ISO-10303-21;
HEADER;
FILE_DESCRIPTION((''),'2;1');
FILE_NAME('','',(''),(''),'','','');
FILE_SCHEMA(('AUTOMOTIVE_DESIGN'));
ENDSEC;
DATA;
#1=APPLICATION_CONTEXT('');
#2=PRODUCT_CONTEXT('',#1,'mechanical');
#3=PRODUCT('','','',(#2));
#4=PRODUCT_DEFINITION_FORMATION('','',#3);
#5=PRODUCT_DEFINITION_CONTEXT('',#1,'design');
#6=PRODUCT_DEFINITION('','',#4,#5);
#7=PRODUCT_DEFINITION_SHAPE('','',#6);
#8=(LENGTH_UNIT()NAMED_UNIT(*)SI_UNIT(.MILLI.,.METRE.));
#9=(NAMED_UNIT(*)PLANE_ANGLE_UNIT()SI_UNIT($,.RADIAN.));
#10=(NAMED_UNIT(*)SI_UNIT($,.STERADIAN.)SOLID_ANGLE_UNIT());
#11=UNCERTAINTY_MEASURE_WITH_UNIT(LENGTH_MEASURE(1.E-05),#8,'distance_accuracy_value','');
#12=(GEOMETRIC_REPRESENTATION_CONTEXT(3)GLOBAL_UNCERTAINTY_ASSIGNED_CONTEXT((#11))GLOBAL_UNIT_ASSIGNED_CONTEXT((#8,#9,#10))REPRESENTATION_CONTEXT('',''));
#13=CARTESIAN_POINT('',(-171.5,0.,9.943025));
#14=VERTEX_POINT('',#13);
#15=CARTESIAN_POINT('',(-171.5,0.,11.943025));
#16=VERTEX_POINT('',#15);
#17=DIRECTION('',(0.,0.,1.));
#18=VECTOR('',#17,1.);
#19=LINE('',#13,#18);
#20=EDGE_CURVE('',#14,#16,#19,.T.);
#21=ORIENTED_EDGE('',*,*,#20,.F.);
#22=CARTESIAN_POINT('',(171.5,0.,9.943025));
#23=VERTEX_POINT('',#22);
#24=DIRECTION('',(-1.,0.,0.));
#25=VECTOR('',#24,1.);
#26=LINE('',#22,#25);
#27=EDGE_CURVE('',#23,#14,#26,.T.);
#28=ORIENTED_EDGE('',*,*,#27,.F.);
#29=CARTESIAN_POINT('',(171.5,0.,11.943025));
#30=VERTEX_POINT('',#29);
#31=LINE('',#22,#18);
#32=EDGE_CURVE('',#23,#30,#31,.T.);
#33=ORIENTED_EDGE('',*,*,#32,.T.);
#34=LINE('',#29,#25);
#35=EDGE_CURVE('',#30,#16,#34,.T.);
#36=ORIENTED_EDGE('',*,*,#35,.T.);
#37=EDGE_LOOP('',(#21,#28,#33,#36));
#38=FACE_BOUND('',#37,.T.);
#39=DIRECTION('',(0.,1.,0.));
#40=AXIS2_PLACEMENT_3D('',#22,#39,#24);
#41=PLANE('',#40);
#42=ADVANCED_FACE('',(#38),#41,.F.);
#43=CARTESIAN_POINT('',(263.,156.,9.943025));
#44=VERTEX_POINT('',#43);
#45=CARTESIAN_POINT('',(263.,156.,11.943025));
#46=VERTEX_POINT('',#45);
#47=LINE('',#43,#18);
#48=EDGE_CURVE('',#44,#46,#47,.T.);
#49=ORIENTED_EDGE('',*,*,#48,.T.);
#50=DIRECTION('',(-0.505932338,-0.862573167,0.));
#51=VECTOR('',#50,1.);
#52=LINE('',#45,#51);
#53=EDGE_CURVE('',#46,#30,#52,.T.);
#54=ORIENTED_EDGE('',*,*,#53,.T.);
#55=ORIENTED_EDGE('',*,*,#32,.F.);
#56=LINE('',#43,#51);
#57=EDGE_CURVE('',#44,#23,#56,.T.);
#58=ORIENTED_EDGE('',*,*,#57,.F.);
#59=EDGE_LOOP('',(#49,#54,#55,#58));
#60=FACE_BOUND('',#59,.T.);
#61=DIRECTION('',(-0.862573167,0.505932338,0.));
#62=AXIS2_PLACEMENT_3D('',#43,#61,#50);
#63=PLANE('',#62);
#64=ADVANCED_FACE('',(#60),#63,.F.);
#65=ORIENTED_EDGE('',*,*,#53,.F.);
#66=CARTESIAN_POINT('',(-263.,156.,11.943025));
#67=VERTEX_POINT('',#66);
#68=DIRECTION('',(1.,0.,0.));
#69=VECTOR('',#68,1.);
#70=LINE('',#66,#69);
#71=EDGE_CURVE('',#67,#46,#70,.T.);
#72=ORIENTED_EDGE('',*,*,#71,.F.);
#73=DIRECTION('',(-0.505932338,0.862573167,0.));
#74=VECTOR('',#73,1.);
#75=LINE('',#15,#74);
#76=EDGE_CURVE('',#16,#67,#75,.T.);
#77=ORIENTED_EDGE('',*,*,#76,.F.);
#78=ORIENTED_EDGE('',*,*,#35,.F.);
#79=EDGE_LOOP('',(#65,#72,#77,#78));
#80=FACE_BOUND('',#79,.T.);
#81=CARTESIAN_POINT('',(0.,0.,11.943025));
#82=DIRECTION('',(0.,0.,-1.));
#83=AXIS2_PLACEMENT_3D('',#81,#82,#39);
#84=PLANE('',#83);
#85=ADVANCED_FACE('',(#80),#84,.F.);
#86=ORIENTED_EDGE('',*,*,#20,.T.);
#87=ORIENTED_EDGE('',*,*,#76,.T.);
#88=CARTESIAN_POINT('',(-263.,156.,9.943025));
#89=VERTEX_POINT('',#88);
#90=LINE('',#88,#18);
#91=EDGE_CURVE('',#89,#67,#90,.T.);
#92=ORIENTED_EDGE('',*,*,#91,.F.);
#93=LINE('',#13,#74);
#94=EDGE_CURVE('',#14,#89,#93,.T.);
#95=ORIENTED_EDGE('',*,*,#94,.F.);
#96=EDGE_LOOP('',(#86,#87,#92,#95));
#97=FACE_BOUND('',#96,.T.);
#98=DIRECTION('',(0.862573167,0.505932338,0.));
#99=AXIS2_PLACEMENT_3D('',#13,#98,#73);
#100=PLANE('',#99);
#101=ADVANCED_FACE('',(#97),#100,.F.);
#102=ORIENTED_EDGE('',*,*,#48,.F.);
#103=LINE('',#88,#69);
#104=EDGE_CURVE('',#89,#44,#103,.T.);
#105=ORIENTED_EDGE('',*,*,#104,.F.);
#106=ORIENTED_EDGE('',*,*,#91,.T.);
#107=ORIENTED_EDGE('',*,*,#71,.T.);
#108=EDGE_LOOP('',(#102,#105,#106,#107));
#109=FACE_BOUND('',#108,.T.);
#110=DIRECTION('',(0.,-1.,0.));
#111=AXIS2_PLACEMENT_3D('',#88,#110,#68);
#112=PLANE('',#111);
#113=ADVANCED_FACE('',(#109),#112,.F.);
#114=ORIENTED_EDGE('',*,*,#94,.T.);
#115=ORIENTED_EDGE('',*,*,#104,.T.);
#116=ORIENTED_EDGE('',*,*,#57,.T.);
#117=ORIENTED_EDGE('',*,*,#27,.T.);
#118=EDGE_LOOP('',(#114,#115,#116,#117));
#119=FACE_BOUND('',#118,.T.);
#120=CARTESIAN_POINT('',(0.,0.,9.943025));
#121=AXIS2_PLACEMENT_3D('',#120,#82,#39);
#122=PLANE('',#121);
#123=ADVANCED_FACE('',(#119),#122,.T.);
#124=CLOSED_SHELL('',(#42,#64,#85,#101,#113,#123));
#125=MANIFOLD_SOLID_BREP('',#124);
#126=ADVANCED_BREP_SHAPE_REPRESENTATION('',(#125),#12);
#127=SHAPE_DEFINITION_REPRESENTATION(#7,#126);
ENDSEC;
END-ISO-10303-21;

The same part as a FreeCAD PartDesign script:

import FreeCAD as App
import Part
import Sketcher
Q = App.Units.Quantity

doc = App.newDocument("Part")
body = doc.addObject("PartDesign::Body", "Body")

sketch1 = body.newObject("Sketcher::SketchObject", "Sketch")
sketch1.AttachmentSupport = (doc.getObject("XY_Plane"), [""])
sketch1.MapMode = "FlatFace"
sketch1.AttachmentOffset = App.Placement(App.Vector(0, 0, 11.943025), App.Rotation())
sketch1.addGeometry([
    Part.LineSegment(App.Vector(172, 0, 0), App.Vector(-172, 0, 0)),
    Part.LineSegment(App.Vector(-172, 0, 0), App.Vector(-263, 156, 0)),
    Part.LineSegment(App.Vector(-263, 156, 0), App.Vector(263, 156, 0)),
    Part.LineSegment(App.Vector(263, 156, 0), App.Vector(172, 0, 0)),
], False)
sketch1.addConstraint([
    Sketcher.Constraint("Coincident", 0, 2, 1, 1),
    Sketcher.Constraint("Coincident", 1, 2, 2, 1),
    Sketcher.Constraint("Coincident", 2, 2, 3, 1),
    Sketcher.Constraint("Coincident", 3, 2, 0, 1),
    Sketcher.Constraint("Horizontal", 0),
    Sketcher.Constraint("Horizontal", 2),
    Sketcher.Constraint("Symmetric", 0, 2, 3, 2, -1, 1),
    Sketcher.Constraint("Equal", 1, 3),
    Sketcher.Constraint("DistanceX", 0, 2, 0, 1, Q("343 mm")),
    Sketcher.Constraint("DistanceX", 2, 1, 2, 2, Q("526 mm")),
    Sketcher.Constraint("DistanceY", -1, 1, 1, 2, Q("156 mm")),
])
pad1 = body.newObject("PartDesign::Pad", "Pad")
pad1.Profile = sketch1
pad1.Length = 2
pad1.Reversed = True

doc.recompute()
